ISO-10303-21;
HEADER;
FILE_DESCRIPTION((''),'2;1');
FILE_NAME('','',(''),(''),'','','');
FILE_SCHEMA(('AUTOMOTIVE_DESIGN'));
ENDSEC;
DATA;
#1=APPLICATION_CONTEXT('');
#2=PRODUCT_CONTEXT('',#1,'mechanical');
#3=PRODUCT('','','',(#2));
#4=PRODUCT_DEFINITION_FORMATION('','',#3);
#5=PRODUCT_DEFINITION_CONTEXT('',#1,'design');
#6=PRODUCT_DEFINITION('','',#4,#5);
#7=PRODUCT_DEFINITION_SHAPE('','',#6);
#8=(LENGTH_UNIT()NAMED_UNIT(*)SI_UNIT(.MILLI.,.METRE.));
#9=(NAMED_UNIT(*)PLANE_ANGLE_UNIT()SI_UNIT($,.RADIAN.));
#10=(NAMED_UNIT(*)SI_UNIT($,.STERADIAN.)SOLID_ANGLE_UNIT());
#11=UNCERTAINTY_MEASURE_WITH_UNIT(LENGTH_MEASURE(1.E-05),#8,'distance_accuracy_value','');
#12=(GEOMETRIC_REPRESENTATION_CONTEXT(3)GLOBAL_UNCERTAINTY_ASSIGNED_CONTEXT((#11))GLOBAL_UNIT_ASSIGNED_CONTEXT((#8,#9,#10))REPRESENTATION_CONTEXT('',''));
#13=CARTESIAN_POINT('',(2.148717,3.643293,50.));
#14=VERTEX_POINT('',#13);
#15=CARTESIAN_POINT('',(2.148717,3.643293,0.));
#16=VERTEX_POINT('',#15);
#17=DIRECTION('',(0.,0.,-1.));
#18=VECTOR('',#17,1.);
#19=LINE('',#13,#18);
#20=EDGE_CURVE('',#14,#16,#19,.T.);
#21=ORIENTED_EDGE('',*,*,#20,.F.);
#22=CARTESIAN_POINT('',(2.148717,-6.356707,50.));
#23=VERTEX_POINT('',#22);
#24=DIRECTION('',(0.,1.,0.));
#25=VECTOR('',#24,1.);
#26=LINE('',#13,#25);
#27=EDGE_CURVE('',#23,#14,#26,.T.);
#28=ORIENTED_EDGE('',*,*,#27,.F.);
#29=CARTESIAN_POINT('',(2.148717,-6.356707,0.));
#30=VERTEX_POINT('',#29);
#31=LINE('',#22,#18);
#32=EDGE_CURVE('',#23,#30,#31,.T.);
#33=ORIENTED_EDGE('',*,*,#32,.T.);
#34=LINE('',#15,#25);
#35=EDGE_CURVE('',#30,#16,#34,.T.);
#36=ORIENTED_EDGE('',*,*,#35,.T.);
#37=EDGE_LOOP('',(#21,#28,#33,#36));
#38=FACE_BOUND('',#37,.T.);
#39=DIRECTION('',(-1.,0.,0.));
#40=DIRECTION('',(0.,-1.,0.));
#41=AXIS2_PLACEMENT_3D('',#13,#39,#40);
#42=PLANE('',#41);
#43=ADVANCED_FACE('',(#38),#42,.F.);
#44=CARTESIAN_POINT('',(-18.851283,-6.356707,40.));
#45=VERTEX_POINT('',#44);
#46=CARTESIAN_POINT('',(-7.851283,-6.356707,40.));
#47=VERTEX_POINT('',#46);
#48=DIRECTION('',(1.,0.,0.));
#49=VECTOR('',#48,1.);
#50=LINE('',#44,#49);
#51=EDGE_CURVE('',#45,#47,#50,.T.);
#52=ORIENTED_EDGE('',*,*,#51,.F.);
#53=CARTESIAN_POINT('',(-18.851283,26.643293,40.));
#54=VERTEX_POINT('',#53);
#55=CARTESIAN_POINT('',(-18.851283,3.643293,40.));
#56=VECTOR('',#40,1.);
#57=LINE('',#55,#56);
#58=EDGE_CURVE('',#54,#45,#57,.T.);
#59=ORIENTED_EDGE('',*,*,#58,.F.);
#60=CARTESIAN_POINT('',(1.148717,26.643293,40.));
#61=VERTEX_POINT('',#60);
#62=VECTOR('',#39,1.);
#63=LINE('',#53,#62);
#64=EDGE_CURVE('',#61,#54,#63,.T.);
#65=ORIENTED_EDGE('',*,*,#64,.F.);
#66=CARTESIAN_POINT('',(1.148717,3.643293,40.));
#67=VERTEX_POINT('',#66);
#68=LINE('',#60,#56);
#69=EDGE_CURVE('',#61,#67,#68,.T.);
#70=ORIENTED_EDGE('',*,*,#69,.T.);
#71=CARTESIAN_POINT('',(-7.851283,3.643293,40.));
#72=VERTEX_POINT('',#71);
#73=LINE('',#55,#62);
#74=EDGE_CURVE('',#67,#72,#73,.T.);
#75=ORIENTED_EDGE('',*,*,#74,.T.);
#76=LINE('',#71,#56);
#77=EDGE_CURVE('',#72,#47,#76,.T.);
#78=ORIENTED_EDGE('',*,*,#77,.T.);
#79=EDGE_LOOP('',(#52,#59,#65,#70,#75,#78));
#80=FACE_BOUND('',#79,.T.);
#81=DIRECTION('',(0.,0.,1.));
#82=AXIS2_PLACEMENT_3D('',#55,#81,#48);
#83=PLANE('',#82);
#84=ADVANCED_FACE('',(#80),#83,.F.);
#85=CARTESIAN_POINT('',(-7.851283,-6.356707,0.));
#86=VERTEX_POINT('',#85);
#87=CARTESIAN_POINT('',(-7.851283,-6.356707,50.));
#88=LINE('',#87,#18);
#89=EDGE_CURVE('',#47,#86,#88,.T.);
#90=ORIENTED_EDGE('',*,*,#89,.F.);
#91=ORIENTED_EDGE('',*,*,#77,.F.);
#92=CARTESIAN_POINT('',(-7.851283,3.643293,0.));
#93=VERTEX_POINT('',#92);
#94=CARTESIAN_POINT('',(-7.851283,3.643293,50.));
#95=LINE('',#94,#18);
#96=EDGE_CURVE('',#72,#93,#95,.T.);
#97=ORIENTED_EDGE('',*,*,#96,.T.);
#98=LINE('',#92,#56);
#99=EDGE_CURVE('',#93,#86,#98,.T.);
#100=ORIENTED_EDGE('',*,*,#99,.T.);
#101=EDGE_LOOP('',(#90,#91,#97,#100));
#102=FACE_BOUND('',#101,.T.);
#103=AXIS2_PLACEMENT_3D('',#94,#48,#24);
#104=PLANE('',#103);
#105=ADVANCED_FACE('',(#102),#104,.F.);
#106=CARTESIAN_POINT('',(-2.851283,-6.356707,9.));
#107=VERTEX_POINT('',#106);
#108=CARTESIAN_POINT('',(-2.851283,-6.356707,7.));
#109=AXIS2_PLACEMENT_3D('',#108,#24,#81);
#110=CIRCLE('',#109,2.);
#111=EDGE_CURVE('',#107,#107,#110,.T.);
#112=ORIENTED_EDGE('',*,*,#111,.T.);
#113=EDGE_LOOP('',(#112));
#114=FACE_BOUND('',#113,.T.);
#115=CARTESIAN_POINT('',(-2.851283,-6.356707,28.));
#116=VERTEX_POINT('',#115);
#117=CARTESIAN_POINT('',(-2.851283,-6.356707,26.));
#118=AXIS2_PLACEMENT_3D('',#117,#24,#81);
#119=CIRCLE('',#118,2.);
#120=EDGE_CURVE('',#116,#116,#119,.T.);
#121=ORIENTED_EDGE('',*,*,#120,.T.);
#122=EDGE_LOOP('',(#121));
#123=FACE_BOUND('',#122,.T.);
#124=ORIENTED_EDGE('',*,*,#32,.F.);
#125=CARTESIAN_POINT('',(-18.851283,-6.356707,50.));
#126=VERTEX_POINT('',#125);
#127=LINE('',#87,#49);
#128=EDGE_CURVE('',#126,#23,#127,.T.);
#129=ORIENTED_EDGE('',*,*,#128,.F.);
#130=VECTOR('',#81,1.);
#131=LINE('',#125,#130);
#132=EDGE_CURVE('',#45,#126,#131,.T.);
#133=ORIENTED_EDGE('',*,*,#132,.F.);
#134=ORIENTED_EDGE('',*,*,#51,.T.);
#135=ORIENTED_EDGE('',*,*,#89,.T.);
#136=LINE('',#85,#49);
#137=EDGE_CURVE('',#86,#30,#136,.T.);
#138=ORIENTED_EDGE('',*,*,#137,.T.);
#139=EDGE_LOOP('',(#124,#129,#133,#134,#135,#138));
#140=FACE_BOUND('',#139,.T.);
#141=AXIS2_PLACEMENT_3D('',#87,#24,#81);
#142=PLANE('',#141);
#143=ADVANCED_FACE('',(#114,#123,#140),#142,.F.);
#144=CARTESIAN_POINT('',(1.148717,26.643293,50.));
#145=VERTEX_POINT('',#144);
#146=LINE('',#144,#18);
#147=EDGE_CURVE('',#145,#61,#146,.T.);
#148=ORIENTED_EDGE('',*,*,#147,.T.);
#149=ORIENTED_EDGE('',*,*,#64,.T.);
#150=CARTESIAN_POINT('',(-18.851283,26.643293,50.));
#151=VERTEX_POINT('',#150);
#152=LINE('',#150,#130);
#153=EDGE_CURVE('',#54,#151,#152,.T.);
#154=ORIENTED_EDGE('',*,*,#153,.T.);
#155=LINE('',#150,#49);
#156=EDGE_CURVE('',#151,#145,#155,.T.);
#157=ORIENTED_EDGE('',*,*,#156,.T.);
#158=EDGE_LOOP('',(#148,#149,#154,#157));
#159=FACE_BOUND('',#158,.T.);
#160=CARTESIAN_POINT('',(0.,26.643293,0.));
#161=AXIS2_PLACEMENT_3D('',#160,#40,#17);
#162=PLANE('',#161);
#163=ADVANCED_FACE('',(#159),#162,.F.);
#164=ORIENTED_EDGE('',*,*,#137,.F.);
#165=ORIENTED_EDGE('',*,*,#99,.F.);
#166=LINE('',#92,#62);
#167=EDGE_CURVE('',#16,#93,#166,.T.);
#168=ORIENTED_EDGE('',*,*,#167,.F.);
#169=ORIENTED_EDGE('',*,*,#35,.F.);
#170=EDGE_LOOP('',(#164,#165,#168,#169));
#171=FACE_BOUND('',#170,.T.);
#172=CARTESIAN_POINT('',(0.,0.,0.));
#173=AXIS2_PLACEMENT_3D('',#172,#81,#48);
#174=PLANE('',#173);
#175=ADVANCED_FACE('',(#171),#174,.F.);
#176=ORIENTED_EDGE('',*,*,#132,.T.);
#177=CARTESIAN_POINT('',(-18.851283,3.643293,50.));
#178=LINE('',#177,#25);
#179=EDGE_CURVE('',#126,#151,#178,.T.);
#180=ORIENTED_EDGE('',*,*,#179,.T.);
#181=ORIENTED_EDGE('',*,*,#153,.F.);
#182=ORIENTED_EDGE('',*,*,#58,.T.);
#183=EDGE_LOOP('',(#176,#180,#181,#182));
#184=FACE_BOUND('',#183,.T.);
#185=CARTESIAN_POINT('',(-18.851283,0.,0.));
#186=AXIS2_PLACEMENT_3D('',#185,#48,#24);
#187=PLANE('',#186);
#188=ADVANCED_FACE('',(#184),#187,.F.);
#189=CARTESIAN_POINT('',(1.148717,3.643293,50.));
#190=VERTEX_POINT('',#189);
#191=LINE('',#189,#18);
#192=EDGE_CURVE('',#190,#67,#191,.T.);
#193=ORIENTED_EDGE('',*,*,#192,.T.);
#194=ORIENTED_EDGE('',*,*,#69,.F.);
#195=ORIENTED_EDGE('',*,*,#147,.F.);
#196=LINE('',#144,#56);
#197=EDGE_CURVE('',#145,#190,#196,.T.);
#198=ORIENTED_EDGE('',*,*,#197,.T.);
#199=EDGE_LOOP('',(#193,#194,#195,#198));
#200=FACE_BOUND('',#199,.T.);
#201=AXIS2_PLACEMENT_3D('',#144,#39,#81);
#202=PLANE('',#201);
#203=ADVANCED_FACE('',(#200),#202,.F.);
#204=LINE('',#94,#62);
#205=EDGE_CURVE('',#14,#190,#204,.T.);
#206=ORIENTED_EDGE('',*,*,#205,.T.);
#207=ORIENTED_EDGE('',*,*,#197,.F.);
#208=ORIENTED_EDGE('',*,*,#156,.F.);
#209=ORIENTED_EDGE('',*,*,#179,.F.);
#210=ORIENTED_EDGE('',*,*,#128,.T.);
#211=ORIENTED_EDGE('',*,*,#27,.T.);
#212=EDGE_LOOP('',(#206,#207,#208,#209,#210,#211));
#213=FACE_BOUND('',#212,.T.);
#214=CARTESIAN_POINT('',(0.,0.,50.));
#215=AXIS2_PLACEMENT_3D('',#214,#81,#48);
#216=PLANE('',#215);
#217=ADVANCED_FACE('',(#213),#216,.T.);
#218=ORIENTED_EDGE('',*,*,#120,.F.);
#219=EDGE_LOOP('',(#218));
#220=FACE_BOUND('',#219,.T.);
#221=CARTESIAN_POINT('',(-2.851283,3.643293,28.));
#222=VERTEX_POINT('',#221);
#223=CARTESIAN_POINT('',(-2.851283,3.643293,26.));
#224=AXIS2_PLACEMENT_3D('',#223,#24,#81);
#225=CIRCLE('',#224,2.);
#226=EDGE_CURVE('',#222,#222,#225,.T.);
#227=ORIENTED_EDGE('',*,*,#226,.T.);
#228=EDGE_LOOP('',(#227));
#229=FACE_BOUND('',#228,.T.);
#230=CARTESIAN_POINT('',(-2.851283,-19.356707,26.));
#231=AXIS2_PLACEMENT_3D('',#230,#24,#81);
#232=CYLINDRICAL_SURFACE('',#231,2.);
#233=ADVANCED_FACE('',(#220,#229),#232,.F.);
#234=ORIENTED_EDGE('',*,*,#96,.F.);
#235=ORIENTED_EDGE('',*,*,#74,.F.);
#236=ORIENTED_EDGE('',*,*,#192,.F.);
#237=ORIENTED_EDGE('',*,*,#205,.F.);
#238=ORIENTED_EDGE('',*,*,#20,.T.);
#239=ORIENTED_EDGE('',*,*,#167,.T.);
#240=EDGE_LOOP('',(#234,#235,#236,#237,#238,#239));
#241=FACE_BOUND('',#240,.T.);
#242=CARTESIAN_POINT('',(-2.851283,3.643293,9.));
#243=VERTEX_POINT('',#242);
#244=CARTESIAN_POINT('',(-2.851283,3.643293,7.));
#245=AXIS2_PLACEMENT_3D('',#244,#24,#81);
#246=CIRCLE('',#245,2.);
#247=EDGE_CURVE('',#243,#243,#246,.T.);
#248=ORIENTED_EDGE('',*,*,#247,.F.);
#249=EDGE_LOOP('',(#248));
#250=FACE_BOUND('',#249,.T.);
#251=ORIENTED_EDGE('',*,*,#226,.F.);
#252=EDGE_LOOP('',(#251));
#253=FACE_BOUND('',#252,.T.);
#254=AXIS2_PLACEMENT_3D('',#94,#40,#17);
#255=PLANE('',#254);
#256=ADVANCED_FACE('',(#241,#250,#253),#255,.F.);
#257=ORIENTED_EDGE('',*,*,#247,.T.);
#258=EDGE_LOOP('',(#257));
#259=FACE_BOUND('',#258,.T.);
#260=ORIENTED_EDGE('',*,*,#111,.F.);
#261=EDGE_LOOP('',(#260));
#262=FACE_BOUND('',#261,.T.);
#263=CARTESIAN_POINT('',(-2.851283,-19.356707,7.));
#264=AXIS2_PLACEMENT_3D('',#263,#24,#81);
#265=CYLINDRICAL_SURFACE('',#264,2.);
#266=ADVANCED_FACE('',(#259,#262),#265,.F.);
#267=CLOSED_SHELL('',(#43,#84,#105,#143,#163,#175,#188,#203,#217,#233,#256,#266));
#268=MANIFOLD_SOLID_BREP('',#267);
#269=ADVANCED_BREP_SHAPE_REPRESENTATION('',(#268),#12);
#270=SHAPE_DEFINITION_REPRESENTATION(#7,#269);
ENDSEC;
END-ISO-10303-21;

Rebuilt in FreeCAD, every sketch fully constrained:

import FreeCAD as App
import Part
import Sketcher

V = App.Vector

doc = App.newDocument("Part")
body = doc.addObject("PartDesign::Body", "Body")

sketch1 = doc.addObject("Sketcher::SketchObject", "Sketch")
body.addObject(sketch1)
sketch1.AttachmentSupport = (doc.XY_Plane, [""])
sketch1.MapMode = "FlatFace"
sketch1.addGeometry([
    Part.LineSegment(V(-8, 4, 0), V(-8, -6, 0)),
    Part.LineSegment(V(-8, -6, 0), V(2, -6, 0)),
    Part.LineSegment(V(2, -6, 0), V(2, 4, 0)),
    Part.LineSegment(V(2, 4, 0), V(-8, 4, 0)),
], False)
sketch1.addConstraint([
    Sketcher.Constraint("Coincident", 0, 2, 1, 1),
    Sketcher.Constraint("Coincident", 1, 2, 2, 1),
    Sketcher.Constraint("Coincident", 2, 2, 3, 1),
    Sketcher.Constraint("Coincident", 3, 2, 0, 1),
    Sketcher.Constraint("Vertical", 0),
    Sketcher.Constraint("Horizontal", 1),
    Sketcher.Constraint("Vertical", 2),
    Sketcher.Constraint("Horizontal", 3),
    Sketcher.Constraint("Equal", 3, 0),
    Sketcher.Constraint("DistanceX", 1, 1, 1, 2, 10.0),
    Sketcher.Constraint("DistanceX", 0, 2, -1, 1, 7.851283),
    Sketcher.Constraint("DistanceY", 0, 2, -1, 1, 6.356707),
])
pad1 = doc.addObject("PartDesign::Pad", "Pad")
body.addObject(pad1)
pad1.Profile = sketch1
pad1.Length = 50

sketch2 = doc.addObject("Sketcher::SketchObject", "Sketch001")
body.addObject(sketch2)
sketch2.AttachmentSupport = (doc.YZ_Plane, [""])
sketch2.MapMode = "FlatFace"
sketch2.AttachmentOffset = App.Placement(V(0, 0, -7.851283), App.Rotation())
sketch2.addGeometry([
    Part.LineSegment(V(4, 40, 0), V(-6, 40, 0)),
    Part.LineSegment(V(-6, 40, 0), V(-6, 50, 0)),
    Part.LineSegment(V(-6, 50, 0), V(4, 50, 0)),
    Part.LineSegment(V(4, 50, 0), V(4, 40, 0)),
], False)
sketch2.addConstraint([
    Sketcher.Constraint("Coincident", 0, 2, 1, 1),
    Sketcher.Constraint("Coincident", 1, 2, 2, 1),
    Sketcher.Constraint("Coincident", 2, 2, 3, 1),
    Sketcher.Constraint("Coincident", 3, 2, 0, 1),
    Sketcher.Constraint("Horizontal", 0),
    Sketcher.Constraint("Vertical", 1),
    Sketcher.Constraint("Horizontal", 2),
    Sketcher.Constraint("Vertical", 3),
    Sketcher.Constraint("Equal", 2, 1),
    Sketcher.Constraint("DistanceX", 0, 2, 0, 1, 10.0),
    Sketcher.Constraint("DistanceY", -1, 1, 0, 2, 40.0),
    Sketcher.Constraint("DistanceX", 0, 2, -1, 1, 6.356707),
])
pad2 = doc.addObject("PartDesign::Pad", "Pad001")
body.addObject(pad2)
pad2.Profile = sketch2
pad2.Length = 11
pad2.Reversed = True

sketch3 = doc.addObject("Sketcher::SketchObject", "Sketch002")
body.addObject(sketch3)
sketch3.AttachmentSupport = (doc.XZ_Plane, [""])
sketch3.MapMode = "FlatFace"
sketch3.AttachmentOffset = App.Placement(V(0, 0, -3.643293), App.Rotation())
sketch3.addGeometry([
    Part.LineSegment(V(-19, 40, 0), V(-19, 50, 0)),
    Part.LineSegment(V(-19, 50, 0), V(1, 50, 0)),
    Part.LineSegment(V(1, 50, 0), V(1, 40, 0)),
    Part.LineSegment(V(1, 40, 0), V(-19, 40, 0)),
], False)
sketch3.addConstraint([
    Sketcher.Constraint("Coincident", 0, 2, 1, 1),
    Sketcher.Constraint("Coincident", 1, 2, 2, 1),
    Sketcher.Constraint("Coincident", 2, 2, 3, 1),
    Sketcher.Constraint("Coincident", 3, 2, 0, 1),
    Sketcher.Constraint("Vertical", 0),
    Sketcher.Constraint("Horizontal", 1),
    Sketcher.Constraint("Vertical", 2),
    Sketcher.Constraint("Horizontal", 3),
    Sketcher.Constraint("DistanceX", 1, 1, 1, 2, 20.0),
    Sketcher.Constraint("DistanceY", 0, 1, 0, 2, 10.0),
    Sketcher.Constraint("DistanceY", -1, 1, 0, 2, 50.0),
    Sketcher.Constraint("DistanceX", 0, 2, -1, 1, 18.851283),
])
pad3 = doc.addObject("PartDesign::Pad", "Pad002")
body.addObject(pad3)
pad3.Profile = sketch3
pad3.Length = 23
pad3.Reversed = True

sketch4 = doc.addObject("Sketcher::SketchObject", "Sketch003")
body.addObject(sketch4)
sketch4.AttachmentSupport = (doc.XZ_Plane, [""])
sketch4.MapMode = "FlatFace"
sketch4.AttachmentOffset = App.Placement(V(0, 0, -3.643293), App.Rotation())
sketch4.addGeometry(Part.Circle(V(-2.9, 7, 0), V(0, 0, 1), 2), False)
sketch4.addConstraint([
    Sketcher.Constraint("Diameter", 0, 4.0),
    Sketcher.Constraint("DistanceY", -1, 1, 0, 3, 7.0),
    Sketcher.Constraint("DistanceX", 0, 3, -1, 1, 2.851283),
])
pocket1 = doc.addObject("PartDesign::Pocket", "Pocket")
body.addObject(pocket1)
pocket1.Profile = sketch4
pocket1.Length = 23
pocket1.Reversed = True

sketch5 = doc.addObject("Sketcher::SketchObject", "Sketch004")
body.addObject(sketch5)
sketch5.AttachmentSupport = (doc.XZ_Plane, [""])
sketch5.MapMode = "FlatFace"
sketch5.AttachmentOffset = App.Placement(V(0, 0, -3.643293), App.Rotation())
sketch5.addGeometry(Part.Circle(V(-2.9, 26, 0), V(0, 0, 1), 2), False)
sketch5.addConstraint([
    Sketcher.Constraint("Diameter", 0, 4.0),
    Sketcher.Constraint("DistanceY", -1, 1, 0, 3, 26.0),
    Sketcher.Constraint("DistanceX", 0, 3, -1, 1, 2.851283),
])
pocket2 = doc.addObject("PartDesign::Pocket", "Pocket001")
body.addObject(pocket2)
pocket2.Profile = sketch5
pocket2.Length = 23
pocket2.Reversed = True

doc.recompute()
